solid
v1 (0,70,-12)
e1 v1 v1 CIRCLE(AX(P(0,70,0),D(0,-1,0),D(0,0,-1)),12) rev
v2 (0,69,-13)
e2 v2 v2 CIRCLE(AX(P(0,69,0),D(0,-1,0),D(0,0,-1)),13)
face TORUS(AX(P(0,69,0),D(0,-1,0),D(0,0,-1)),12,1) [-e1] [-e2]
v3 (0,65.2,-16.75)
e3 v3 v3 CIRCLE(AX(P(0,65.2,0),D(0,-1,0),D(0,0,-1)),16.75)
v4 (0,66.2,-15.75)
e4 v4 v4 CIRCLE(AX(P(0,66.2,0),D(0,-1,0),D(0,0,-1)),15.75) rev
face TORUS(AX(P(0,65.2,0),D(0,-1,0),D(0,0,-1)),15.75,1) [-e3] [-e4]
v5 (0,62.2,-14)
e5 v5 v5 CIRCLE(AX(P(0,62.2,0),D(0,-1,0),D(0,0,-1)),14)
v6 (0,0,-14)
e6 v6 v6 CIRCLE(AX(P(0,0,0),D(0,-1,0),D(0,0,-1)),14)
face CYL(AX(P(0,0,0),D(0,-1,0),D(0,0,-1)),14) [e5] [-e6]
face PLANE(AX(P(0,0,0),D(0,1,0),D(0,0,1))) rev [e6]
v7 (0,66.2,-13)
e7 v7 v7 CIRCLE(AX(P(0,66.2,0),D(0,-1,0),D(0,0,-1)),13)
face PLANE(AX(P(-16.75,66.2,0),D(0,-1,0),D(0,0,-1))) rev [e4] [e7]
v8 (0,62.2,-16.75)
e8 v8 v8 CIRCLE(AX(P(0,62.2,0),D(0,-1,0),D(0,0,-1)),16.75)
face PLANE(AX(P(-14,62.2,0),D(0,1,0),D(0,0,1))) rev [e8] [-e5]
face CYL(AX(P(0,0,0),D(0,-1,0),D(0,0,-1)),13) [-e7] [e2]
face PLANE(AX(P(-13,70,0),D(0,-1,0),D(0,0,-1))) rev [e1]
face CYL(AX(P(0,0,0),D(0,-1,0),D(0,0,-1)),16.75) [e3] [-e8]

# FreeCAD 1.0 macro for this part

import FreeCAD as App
import Part
import Sketcher
from FreeCAD import Vector


def edges_at(feature, points):
    """Names of the edges that pass closest to the given points."""
    edges = feature.Shape.Edges
    near = lambda p: min(range(len(edges)), key=lambda i: edges[i].distToShape(Part.Vertex(*p))[0])
    return sorted({f"Edge{near(p) + 1}" for p in points})

doc = App.newDocument("Part")
body = doc.addObject("PartDesign::Body", "Body")

# Sketch on XY plane
sketch1 = body.newObject("Sketcher::SketchObject", "Sketch")
sketch1.AttachmentSupport = (doc.getObject("XY_Plane"), [""])
sketch1.MapMode = "FlatFace"
sketch1.addGeometry([
    Part.LineSegment(Vector(-14, 0, 0), Vector(0, 0, 0)),  # 0
    Part.LineSegment(Vector(0, 0, 0), Vector(0, 70, 0)),  # 1
    Part.LineSegment(Vector(0, 70, 0), Vector(-13, 70, 0)),  # 2
    Part.LineSegment(Vector(-13, 70, 0), Vector(-13, 66.2, 0)),  # 3
    Part.LineSegment(Vector(-13, 66.2, 0), Vector(-16.8, 66.2, 0)),  # 4
    Part.LineSegment(Vector(-16.8, 66.2, 0), Vector(-16.8, 62.2, 0)),  # 5
    Part.LineSegment(Vector(-16.8, 62.2, 0), Vector(-14, 62.2, 0)),  # 6
    Part.LineSegment(Vector(-14, 62.2, 0), Vector(-14, 0, 0)),  # 7
], False)
sketch1.addConstraint([
    Sketcher.Constraint("Coincident", 0, 2, 1, 1),
    Sketcher.Constraint("Coincident", 1, 2, 2, 1),
    Sketcher.Constraint("Coincident", 2, 2, 3, 1),
    Sketcher.Constraint("Coincident", 3, 2, 4, 1),
    Sketcher.Constraint("Coincident", 4, 2, 5, 1),
    Sketcher.Constraint("Coincident", 5, 2, 6, 1),
    Sketcher.Constraint("Coincident", 6, 2, 7, 1),
    Sketcher.Constraint("Coincident", 7, 2, 0, 1),
    Sketcher.Constraint("Horizontal", 0),
    Sketcher.Constraint("Vertical", 1),
    Sketcher.Constraint("Horizontal", 2),
    Sketcher.Constraint("Vertical", 3),
    Sketcher.Constraint("Horizontal", 4),
    Sketcher.Constraint("Vertical", 5),
    Sketcher.Constraint("Horizontal", 6),
    Sketcher.Constraint("Vertical", 7),
    Sketcher.Constraint("Coincident", 0, 2, -1, 1),
    Sketcher.Constraint("DistanceX", 0, 1, 0, 2, 14.0),
    Sketcher.Constraint("DistanceX", 2, 2, 2, 1, 13.0),
    Sketcher.Constraint("DistanceY", 1, 1, 1, 2, 70.0),
    Sketcher.Constraint("DistanceY", 5, 2, 5, 1, 4.0),
    Sketcher.Constraint("DistanceY", 3, 2, 3, 1, 3.8),
    Sketcher.Constraint("DistanceX", 4, 2, 4, 1, 3.75),
])
revolution = body.newObject("PartDesign::Revolution", "Revolution")
revolution.Profile = sketch1
revolution.ReferenceAxis = (sketch1, ["V_Axis"])
revolution.Angle = 360
doc.recompute()

fillet = body.newObject("PartDesign::Fillet", "Fillet")
fillet.Base = (revolution, edges_at(revolution, [(13, 70, 0), (16.75, 66.2, 0)]))
fillet.Radius = 1

doc.recompute()
